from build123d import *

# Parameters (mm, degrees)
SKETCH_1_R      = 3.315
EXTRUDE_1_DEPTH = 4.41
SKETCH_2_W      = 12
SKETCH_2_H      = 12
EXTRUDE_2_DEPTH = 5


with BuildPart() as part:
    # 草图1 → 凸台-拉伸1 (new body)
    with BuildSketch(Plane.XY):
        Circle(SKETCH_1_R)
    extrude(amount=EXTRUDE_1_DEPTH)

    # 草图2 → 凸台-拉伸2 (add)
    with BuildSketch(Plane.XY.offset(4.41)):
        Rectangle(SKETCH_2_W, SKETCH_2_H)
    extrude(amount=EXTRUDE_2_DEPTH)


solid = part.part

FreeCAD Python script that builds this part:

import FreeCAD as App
import Part
import Sketcher
Q = App.Units.Quantity


def add_polygon(sketch, points):
    """Adds a closed chain of lines whose ends are joined by coincident constraints."""
    first, n = sketch.GeometryCount, len(points)
    for a, b in zip(points, points[1:] + points[:1]):
        sketch.addGeometry(Part.LineSegment(App.Vector(*a, 0), App.Vector(*b, 0)), False)
    for i in range(n):
        sketch.addConstraint(Sketcher.Constraint("Coincident", first + i, 2, first + (i + 1) % n, 1))

doc = App.newDocument("Part")
body = doc.addObject("PartDesign::Body", "Body")

# Sketch on XY plane
sketch1 = body.newObject("Sketcher::SketchObject", "Sketch")
sketch1.AttachmentSupport = (doc.getObject("XY_Plane"), [""])
sketch1.MapMode = "FlatFace"
sketch1.addGeometry(Part.Circle(App.Vector(0, 0, 0), App.Vector(0, 0, 1), 3.3), False)
sketch1.addConstraint(Sketcher.Constraint("Coincident", 0, 3, -1, 1))
sketch1.addConstraint(Sketcher.Constraint("Diameter", 0, Q("6.63 mm")))
pad1 = body.newObject("PartDesign::Pad", "Pad")
pad1.Profile = sketch1
pad1.Length = 4.41

# Sketch on XY plane
sketch2 = body.newObject("Sketcher::SketchObject", "Sketch001")
sketch2.AttachmentSupport = (doc.getObject("XY_Plane"), [""])
sketch2.MapMode = "FlatFace"
sketch2.AttachmentOffset = App.Placement(App.Vector(0, 0, 4.41), App.Rotation())
add_polygon(sketch2, [(-6, 6), (-6, -6), (6, -6), (6, 6)])  # lines 0-3
sketch2.addConstraint(Sketcher.Constraint("Vertical", 0))
sketch2.addConstraint(Sketcher.Constraint("Horizontal", 1))
sketch2.addConstraint(Sketcher.Constraint("Vertical", 2))
sketch2.addConstraint(Sketcher.Constraint("Horizontal", 3))
sketch2.addConstraint(Sketcher.Constraint("Symmetric", 0, 2, 2, 2, -1, 1))
sketch2.addConstraint(Sketcher.Constraint("Equal", 3, 0))
sketch2.addConstraint(Sketcher.Constraint("DistanceX", 1, 1, 1, 2, Q("12 mm")))
pad2 = body.newObject("PartDesign::Pad", "Pad001")
pad2.Profile = sketch2
pad2.Length = 5

doc.recompute()
